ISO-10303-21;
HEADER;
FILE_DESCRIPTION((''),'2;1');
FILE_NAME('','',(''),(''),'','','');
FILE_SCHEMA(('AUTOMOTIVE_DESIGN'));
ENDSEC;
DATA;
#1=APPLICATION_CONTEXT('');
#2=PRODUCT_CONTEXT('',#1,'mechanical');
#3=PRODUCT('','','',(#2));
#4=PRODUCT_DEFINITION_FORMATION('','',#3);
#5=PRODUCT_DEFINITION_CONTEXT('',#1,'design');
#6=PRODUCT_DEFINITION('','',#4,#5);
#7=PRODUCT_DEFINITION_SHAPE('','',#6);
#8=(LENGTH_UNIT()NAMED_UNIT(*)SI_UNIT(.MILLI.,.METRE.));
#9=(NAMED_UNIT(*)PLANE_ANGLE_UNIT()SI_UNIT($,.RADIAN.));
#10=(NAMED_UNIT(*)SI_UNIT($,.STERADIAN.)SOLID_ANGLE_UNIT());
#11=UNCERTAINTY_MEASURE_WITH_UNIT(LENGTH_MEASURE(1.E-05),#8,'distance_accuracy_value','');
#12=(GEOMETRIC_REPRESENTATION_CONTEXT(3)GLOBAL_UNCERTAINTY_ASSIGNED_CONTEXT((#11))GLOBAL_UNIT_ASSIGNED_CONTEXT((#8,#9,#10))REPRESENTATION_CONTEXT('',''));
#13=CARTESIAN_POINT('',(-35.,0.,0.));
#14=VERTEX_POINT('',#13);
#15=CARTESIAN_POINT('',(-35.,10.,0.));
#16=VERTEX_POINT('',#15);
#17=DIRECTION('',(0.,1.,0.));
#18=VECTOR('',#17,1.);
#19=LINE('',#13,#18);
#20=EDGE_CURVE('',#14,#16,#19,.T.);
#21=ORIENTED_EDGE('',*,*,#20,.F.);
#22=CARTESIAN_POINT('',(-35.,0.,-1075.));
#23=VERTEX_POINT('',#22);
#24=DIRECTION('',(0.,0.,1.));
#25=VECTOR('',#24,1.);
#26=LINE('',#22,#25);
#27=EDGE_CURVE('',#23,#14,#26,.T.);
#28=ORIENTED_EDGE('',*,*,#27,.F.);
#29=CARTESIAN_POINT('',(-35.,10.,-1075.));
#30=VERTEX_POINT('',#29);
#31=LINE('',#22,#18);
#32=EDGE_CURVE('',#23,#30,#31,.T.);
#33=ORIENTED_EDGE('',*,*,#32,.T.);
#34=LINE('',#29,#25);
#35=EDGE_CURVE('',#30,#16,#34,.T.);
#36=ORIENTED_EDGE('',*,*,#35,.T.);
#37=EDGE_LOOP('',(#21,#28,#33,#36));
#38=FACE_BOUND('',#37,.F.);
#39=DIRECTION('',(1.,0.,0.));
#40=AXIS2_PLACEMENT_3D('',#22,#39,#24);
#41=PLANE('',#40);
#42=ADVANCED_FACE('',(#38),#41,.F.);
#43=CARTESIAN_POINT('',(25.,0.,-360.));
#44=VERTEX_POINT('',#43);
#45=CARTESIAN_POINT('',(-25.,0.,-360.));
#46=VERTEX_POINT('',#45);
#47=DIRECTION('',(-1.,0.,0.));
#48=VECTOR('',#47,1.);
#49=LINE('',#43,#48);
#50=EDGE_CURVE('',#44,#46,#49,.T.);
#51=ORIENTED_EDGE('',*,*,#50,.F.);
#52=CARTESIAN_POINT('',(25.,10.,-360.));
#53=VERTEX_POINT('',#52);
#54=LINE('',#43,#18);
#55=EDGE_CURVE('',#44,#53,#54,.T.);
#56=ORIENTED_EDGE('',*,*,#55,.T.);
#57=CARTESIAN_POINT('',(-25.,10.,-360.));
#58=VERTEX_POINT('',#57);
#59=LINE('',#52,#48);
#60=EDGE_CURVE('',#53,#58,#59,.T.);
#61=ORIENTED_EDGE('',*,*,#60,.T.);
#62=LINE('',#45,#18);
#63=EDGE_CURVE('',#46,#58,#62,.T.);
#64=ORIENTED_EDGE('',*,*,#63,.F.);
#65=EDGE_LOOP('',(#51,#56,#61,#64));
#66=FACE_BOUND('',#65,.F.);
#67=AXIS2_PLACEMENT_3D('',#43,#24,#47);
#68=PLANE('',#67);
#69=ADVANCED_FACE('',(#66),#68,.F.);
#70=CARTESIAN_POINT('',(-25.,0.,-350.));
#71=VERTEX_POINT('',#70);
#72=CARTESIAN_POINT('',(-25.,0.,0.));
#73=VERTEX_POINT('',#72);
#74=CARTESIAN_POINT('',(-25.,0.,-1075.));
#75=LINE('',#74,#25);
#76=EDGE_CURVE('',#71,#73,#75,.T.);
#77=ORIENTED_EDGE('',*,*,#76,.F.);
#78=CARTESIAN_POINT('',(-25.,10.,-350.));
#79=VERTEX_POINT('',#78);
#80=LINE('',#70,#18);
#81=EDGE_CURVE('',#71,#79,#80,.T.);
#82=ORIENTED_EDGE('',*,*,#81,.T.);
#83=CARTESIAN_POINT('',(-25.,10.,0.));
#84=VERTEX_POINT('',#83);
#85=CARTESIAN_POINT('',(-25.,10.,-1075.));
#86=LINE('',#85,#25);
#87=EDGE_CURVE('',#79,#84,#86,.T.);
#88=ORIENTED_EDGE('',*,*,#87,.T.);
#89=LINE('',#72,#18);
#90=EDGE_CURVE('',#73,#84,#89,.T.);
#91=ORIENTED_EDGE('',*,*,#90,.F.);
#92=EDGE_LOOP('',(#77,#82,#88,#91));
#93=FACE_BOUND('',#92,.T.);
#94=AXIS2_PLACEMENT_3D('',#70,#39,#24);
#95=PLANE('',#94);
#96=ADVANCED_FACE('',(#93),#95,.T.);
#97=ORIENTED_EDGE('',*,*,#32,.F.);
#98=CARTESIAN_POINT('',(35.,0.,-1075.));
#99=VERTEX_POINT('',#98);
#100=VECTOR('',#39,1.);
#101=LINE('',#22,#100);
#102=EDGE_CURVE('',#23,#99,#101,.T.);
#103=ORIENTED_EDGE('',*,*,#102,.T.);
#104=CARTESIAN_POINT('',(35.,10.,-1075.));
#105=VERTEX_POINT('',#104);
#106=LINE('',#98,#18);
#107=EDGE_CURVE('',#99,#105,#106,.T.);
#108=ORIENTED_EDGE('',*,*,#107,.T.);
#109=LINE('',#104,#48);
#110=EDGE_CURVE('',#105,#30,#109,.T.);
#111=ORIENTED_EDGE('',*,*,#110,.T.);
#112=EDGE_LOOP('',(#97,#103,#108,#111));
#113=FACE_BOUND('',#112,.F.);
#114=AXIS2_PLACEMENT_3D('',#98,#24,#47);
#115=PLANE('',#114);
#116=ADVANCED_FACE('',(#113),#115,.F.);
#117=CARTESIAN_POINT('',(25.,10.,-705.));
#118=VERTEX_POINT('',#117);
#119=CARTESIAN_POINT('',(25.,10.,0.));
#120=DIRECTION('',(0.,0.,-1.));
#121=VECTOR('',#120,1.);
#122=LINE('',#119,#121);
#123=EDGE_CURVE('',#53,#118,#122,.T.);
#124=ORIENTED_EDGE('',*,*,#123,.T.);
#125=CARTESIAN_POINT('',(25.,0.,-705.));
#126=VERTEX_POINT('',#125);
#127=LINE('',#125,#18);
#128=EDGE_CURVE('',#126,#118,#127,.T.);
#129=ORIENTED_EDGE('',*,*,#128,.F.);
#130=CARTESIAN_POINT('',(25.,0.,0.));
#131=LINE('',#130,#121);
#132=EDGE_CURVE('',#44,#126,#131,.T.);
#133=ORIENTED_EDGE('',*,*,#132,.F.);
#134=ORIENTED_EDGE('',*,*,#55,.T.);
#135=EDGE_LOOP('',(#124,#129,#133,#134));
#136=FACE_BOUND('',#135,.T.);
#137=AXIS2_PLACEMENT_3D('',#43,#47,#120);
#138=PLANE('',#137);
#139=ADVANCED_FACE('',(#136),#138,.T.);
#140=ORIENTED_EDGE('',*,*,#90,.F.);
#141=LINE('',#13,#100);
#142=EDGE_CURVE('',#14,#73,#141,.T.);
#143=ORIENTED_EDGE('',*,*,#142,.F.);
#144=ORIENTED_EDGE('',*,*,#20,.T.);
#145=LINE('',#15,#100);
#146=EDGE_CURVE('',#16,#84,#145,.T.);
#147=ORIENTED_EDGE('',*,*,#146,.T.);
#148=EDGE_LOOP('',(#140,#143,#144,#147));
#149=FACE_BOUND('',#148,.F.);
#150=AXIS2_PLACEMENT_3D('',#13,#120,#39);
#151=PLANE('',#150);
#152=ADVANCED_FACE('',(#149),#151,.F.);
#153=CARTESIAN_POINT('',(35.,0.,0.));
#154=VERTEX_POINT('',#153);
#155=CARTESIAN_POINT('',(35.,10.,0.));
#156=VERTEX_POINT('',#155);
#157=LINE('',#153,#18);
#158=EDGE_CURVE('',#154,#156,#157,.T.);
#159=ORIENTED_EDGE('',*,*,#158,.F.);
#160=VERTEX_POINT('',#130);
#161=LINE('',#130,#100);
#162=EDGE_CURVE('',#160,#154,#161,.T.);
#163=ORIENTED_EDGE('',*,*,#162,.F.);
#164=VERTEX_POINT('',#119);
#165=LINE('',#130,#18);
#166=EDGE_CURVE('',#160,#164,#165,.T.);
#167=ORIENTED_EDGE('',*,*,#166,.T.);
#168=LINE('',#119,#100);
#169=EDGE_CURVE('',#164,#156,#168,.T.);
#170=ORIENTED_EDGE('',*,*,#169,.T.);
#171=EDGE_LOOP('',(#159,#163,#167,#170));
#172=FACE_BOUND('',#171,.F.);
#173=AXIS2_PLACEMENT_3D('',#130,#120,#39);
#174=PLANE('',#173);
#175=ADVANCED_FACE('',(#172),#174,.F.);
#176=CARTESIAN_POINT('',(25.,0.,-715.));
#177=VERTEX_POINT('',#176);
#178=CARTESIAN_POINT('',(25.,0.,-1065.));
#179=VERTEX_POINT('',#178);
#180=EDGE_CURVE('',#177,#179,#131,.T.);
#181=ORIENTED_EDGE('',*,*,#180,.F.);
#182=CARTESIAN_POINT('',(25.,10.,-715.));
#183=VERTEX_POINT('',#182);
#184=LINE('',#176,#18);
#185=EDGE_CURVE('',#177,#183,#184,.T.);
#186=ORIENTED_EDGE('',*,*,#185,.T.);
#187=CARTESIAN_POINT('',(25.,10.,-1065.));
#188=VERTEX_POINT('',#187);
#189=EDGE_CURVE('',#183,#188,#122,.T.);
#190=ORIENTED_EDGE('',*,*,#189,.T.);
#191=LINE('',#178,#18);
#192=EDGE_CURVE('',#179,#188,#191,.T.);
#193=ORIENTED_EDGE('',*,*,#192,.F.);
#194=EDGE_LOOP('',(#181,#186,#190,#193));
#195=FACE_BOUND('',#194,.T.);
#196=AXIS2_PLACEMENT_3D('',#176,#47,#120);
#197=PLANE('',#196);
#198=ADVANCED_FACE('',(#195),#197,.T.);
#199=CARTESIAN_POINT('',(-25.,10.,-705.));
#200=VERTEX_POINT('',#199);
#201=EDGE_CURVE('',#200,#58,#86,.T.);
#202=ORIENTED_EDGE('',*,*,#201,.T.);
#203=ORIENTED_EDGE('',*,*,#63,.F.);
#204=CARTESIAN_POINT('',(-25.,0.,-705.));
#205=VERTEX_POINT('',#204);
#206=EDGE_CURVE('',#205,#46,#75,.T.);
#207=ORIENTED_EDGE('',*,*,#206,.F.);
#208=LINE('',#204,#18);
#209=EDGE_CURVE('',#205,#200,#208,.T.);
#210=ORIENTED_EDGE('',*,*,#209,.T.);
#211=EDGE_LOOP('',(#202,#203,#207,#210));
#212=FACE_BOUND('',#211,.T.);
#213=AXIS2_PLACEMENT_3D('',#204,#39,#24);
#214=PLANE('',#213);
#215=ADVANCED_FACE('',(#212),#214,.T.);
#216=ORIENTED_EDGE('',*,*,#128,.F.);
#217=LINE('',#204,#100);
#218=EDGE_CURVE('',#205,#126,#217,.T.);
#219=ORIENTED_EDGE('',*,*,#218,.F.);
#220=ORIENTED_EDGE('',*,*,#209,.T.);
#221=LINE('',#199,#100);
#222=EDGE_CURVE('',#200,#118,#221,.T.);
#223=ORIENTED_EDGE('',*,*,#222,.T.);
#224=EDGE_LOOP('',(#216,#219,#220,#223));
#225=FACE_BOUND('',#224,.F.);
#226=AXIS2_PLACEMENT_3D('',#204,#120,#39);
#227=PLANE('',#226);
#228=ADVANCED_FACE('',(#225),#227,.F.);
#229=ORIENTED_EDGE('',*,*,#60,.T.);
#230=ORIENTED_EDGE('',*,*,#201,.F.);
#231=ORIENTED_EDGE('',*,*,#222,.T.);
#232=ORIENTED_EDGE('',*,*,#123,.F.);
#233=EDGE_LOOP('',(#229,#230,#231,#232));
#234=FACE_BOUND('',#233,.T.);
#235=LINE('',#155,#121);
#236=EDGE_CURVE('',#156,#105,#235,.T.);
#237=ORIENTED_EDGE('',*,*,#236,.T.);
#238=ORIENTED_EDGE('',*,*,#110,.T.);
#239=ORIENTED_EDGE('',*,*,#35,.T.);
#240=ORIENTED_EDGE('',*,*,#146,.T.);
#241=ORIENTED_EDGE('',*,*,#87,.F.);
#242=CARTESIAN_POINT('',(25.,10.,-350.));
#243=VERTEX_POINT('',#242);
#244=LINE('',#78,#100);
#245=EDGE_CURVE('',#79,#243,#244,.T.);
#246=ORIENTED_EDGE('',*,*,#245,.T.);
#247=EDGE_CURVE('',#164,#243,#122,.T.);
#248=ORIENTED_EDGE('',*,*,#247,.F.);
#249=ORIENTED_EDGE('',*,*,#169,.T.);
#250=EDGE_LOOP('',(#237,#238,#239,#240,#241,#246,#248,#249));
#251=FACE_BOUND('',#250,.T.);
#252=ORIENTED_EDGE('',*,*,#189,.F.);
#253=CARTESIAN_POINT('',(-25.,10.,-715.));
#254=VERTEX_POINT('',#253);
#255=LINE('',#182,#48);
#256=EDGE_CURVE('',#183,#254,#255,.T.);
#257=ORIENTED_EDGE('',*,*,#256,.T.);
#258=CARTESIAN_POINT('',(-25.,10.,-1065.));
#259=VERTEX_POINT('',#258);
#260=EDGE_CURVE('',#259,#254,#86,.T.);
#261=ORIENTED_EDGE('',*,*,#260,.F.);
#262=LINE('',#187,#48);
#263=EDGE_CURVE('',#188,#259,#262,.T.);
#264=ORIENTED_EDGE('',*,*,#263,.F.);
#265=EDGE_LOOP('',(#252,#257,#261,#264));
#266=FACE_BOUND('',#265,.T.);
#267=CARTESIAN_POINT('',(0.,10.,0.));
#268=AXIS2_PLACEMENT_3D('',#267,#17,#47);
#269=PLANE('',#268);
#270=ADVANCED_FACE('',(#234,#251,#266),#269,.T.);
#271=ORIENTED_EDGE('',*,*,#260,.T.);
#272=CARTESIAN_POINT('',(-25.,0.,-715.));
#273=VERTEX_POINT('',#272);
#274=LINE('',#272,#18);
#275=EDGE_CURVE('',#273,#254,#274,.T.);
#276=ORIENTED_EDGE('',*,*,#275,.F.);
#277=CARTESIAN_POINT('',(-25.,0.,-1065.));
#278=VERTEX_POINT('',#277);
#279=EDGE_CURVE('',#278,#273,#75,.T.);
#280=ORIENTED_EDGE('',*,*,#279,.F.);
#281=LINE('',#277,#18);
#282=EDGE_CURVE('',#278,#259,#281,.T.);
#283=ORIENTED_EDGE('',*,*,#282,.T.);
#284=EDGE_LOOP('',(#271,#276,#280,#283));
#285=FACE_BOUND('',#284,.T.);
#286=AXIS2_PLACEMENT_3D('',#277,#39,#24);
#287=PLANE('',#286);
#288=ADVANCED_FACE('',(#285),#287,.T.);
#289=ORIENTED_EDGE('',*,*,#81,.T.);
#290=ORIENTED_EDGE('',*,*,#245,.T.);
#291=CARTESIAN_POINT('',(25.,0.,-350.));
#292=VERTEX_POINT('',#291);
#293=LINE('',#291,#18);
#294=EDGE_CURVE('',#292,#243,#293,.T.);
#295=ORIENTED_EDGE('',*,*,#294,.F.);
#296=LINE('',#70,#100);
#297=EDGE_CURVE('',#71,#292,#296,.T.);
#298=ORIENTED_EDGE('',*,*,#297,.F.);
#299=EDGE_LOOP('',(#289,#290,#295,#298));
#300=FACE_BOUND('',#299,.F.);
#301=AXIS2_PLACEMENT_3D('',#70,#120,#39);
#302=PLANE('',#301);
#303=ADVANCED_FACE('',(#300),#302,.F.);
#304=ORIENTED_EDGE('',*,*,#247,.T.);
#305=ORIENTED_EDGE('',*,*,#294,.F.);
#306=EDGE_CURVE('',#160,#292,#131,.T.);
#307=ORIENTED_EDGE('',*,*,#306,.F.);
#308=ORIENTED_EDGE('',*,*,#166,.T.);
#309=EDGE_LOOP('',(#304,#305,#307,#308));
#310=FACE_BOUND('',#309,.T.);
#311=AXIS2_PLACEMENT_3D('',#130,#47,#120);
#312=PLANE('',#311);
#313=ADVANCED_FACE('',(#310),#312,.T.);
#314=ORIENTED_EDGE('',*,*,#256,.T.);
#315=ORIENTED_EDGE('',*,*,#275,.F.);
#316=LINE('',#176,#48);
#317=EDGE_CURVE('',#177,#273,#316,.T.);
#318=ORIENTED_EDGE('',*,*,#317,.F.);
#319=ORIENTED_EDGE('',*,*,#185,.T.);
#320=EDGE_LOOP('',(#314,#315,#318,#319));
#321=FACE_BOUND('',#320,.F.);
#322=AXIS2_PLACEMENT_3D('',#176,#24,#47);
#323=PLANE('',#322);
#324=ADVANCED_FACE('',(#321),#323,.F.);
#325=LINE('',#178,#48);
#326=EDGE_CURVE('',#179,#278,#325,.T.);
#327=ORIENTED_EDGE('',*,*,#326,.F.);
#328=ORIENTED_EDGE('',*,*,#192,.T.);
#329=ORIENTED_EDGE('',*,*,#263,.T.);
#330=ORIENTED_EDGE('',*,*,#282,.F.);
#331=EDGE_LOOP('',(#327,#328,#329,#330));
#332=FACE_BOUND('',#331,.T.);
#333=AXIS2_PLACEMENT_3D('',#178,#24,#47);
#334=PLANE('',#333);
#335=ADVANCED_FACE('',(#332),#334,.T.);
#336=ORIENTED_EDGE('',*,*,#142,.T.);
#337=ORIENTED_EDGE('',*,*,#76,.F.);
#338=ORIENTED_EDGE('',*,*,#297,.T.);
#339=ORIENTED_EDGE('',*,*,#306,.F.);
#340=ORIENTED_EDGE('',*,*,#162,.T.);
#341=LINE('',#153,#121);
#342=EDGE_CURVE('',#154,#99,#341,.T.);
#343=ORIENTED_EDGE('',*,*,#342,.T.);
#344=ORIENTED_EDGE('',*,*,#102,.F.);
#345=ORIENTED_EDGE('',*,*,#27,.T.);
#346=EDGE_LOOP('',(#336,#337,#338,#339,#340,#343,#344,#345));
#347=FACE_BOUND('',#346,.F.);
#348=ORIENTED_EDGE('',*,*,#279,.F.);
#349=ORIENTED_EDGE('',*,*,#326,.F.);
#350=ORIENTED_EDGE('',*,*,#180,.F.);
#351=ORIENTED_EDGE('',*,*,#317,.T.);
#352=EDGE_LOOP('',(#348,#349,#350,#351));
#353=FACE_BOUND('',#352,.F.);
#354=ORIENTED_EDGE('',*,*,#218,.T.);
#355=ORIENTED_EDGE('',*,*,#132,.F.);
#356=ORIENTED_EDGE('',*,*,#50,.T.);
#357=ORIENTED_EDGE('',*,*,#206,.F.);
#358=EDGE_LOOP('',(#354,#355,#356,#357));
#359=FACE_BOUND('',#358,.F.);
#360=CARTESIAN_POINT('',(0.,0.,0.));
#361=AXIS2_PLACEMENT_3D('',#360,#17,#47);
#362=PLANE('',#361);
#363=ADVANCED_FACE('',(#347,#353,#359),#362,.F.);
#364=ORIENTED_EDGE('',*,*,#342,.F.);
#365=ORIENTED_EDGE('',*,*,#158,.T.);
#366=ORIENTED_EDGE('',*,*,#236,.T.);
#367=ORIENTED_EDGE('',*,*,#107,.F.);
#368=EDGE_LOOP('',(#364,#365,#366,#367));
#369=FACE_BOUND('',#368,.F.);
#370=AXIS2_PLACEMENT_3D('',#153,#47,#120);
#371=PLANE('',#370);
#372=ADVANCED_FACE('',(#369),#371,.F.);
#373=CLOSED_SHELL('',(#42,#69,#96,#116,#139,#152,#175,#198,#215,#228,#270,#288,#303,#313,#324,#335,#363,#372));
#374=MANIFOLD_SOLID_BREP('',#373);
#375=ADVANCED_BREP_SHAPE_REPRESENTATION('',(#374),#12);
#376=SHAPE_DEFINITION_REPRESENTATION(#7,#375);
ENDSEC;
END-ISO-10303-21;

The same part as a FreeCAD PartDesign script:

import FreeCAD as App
import Part
import Sketcher
from FreeCAD import Vector
Q = App.Units.Quantity


def add_polygon(sketch, points):
    """Adds a closed chain of lines whose ends are joined by coincident constraints."""
    first, n = sketch.GeometryCount, len(points)
    for a, b in zip(points, points[1:] + points[:1]):
        sketch.addGeometry(Part.LineSegment(App.Vector(*a, 0), App.Vector(*b, 0)), False)
    for i in range(n):
        sketch.addConstraint(Sketcher.Constraint("Coincident", first + i, 2, first + (i + 1) % n, 1))

doc = App.newDocument("Part")
body = doc.addObject("PartDesign::Body", "Body")

sketch1 = body.newObject("Sketcher::SketchObject", "Sketch")
sketch1.AttachmentSupport = (doc.getObject("XZ_Plane"), [""])
sketch1.MapMode = "FlatFace"
add_polygon(sketch1, [(25, 0), (35, 0), (35, -1075), (-35, -1075), (-35, 0), (-25, 0), (-25, -350), (25, -350)])
add_polygon(sketch1, [(25, -705), (25, -360), (-25, -360), (-25, -705)])
add_polygon(sketch1, [(25, -1065), (25, -715), (-25, -715), (-25, -1065)])
sketch1.addConstraint(Sketcher.Constraint("Horizontal", 0))
sketch1.addConstraint(Sketcher.Constraint("Vertical", 1))
sketch1.addConstraint(Sketcher.Constraint("Horizontal", 2))
sketch1.addConstraint(Sketcher.Constraint("Vertical", 3))
sketch1.addConstraint(Sketcher.Constraint("Horizontal", 4))
sketch1.addConstraint(Sketcher.Constraint("Vertical", 5))
sketch1.addConstraint(Sketcher.Constraint("Horizontal", 6))
sketch1.addConstraint(Sketcher.Constraint("Vertical", 7))
sketch1.addConstraint(Sketcher.Constraint("Vertical", 8))
sketch1.addConstraint(Sketcher.Constraint("Horizontal", 9))
sketch1.addConstraint(Sketcher.Constraint("Vertical", 10))
sketch1.addConstraint(Sketcher.Constraint("Horizontal", 11))
sketch1.addConstraint(Sketcher.Constraint("Vertical", 12))
sketch1.addConstraint(Sketcher.Constraint("Horizontal", 13))
sketch1.addConstraint(Sketcher.Constraint("Vertical", 14))
sketch1.addConstraint(Sketcher.Constraint("Horizontal", 15))
sketch1.addConstraint(Sketcher.Constraint("Symmetric", 0, 2, 3, 2, -1, 1))
sketch1.addConstraint(Sketcher.Constraint("Symmetric", 4, 2, 7, 2, -2))
sketch1.addConstraint(Sketcher.Constraint("Vertical", 7, 2, 8, 2))
sketch1.addConstraint(Sketcher.Constraint("Vertical", 5, 2, 9, 2))
sketch1.addConstraint(Sketcher.Constraint("Vertical", 11, 2, 12, 2))
sketch1.addConstraint(Sketcher.Constraint("Vertical", 10, 2, 13, 2))
sketch1.addConstraint(Sketcher.Constraint("Equal", 7, 12))
sketch1.addConstraint(Sketcher.Constraint("DistanceX", 0, 1, 0, 2, Q("10 mm")))
sketch1.addConstraint(Sketcher.Constraint("DistanceX", 2, 2, 2, 1, Q("70 mm")))
sketch1.addConstraint(Sketcher.Constraint("DistanceY", 1, 2, 1, 1, Q("1075 mm")))
sketch1.addConstraint(Sketcher.Constraint("DistanceY", 5, 2, 5, 1, Q("350 mm")))
sketch1.addConstraint(Sketcher.Constraint("DistanceY", 10, 2, -1, 1, Q("705 mm")))
sketch1.addConstraint(Sketcher.Constraint("DistanceY", 8, 2, 6, 2, Q("10 mm")))
sketch1.addConstraint(Sketcher.Constraint("DistanceY", 12, 2, 11, 2, Q("10 mm")))
pad1 = body.newObject("PartDesign::Pad", "Pad")
pad1.Profile = sketch1
pad1.Length = 10
pad1.Reversed = True

doc.recompute()
